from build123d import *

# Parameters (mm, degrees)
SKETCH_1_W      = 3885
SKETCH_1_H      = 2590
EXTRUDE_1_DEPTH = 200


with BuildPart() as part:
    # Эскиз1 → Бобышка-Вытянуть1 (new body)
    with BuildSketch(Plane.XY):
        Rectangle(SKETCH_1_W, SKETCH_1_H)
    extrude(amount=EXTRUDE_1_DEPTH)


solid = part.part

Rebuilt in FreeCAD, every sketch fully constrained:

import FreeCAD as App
import Part
import Sketcher
from FreeCAD import Vector

doc = App.newDocument("Part")
body = doc.addObject("PartDesign::Body", "Body")

# Sketch on XY plane
sketch1 = body.newObject("Sketcher::SketchObject", "Sketch")
sketch1.AttachmentSupport = (doc.getObject("XY_Plane"), [""])
sketch1.MapMode = "FlatFace"
sketch1.addGeometry(Part.LineSegment(Vector(-1942.5, 1295, 0), Vector(-1942.5, -1295, 0)), False)
sketch1.addGeometry(Part.LineSegment(Vector(-1942.5, -1295, 0), Vector(1942.5, -1295, 0)), False)
sketch1.addGeometry(Part.LineSegment(Vector(1942.5, -1295, 0), Vector(1942.5, 1295, 0)), False)
sketch1.addGeometry(Part.LineSegment(Vector(1942.5, 1295, 0), Vector(-1942.5, 1295, 0)), False)
sketch1.addConstraint(Sketcher.Constraint("Coincident", 0, 2, 1, 1))
sketch1.addConstraint(Sketcher.Constraint("Coincident", 1, 2, 2, 1))
sketch1.addConstraint(Sketcher.Constraint("Coincident", 2, 2, 3, 1))
sketch1.addConstraint(Sketcher.Constraint("Coincident", 3, 2, 0, 1))
sketch1.addConstraint(Sketcher.Constraint("Vertical", 0))
sketch1.addConstraint(Sketcher.Constraint("Horizontal", 1))
sketch1.addConstraint(Sketcher.Constraint("Vertical", 2))
sketch1.addConstraint(Sketcher.Constraint("Horizontal", 3))
sketch1.addConstraint(Sketcher.Constraint("Symmetric", 0, 2, 2, 2, -1, 1))
sketch1.addConstraint(Sketcher.Constraint("DistanceX", 1, 1, 1, 2, 3885.0))
sketch1.addConstraint(Sketcher.Constraint("DistanceY", 0, 2, 0, 1, 2590.0))
pad1 = body.newObject("PartDesign::Pad", "Pad")
pad1.Profile = sketch1
pad1.Length = 200

doc.recompute()
